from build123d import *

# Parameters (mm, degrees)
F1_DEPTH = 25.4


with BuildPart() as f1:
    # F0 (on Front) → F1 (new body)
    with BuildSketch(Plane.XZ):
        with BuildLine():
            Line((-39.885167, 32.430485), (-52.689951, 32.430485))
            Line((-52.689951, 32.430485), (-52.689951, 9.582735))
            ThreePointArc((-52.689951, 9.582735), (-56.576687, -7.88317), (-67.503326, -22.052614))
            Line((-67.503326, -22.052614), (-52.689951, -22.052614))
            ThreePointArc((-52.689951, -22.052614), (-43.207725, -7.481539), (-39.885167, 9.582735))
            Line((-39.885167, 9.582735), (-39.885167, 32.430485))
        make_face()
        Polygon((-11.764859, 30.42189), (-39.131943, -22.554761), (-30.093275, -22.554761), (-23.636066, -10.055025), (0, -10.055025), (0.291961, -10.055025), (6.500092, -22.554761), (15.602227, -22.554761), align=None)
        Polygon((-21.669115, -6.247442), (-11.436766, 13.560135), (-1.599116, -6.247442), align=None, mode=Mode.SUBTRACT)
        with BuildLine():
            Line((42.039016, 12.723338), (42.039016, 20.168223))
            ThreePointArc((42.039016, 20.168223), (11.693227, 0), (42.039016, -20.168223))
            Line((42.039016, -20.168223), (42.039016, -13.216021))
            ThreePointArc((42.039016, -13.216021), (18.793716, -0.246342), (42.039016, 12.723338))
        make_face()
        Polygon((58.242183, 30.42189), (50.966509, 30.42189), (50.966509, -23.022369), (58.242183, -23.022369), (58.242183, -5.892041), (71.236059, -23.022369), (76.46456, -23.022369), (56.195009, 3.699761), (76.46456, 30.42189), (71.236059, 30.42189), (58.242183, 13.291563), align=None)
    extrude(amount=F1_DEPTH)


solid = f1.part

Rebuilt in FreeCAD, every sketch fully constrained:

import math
import FreeCAD as App
import Part
import Sketcher
from FreeCAD import Vector


def add_polygon(sketch, points):
    """Adds a closed chain of lines whose ends are joined by coincident constraints."""
    first, n = sketch.GeometryCount, len(points)
    for a, b in zip(points, points[1:] + points[:1]):
        sketch.addGeometry(Part.LineSegment(App.Vector(*a, 0), App.Vector(*b, 0)), False)
    for i in range(n):
        sketch.addConstraint(Sketcher.Constraint("Coincident", first + i, 2, first + (i + 1) % n, 1))

doc = App.newDocument("Part")
params = doc.addObject("Spreadsheet::Sheet", "Params")
for row, (alias, value) in enumerate([
    ("pad1_length", "1 in"),
], start=1):
    params.set(f"A{row}", alias)
    params.set(f"B{row}", "=" + value)
    params.setAlias(f"B{row}", alias)

body = doc.addObject("PartDesign::Body", "Body")
body.AllowCompound = True

# Sketch on XZ plane
sketch1 = body.newObject("Sketcher::SketchObject", "Sketch")
sketch1.AttachmentSupport = (doc.getObject("XZ_Plane"), [""])
sketch1.MapMode = "FlatFace"
sketch1.addGeometry(Part.LineSegment(Vector(-39.885167, 32.430485, 0), Vector(-52.689951, 32.430485, 0)), False)  # 0
sketch1.addGeometry(Part.LineSegment(Vector(-52.689951, 32.430485, 0), Vector(-52.689951, 9.582735, 0)), False)  # 1
sketch1.addGeometry(Part.ArcOfCircle(Part.Circle(Vector(-93.87676, 9.582734, 0), Vector(0, 0, 1), 41.186809), math.radians(-50.183053), math.radians(0.000002)), False)  # 2
sketch1.addGeometry(Part.LineSegment(Vector(-67.503326, -22.052614, 0), Vector(-52.689951, -22.052614, 0)), False)  # 3
sketch1.addGeometry(Part.ArcOfCircle(Part.Circle(Vector(-85.366524, 9.582737, 0), Vector(0, 0, 1), 45.481357), math.radians(-44.072452), math.radians(-0.000002)), False)  # 4
sketch1.addGeometry(Part.LineSegment(Vector(-39.885167, 9.582735, 0), Vector(-39.885167, 32.430485, 0)), False)  # 5
add_polygon(sketch1, [(-11.764859, 30.42189), (-39.131943, -22.554761), (-30.093275, -22.554761), (-23.636066, -10.055025), (0.291961, -10.055025), (6.500092, -22.554761), (15.602227, -22.554761)])  # lines 6-12
add_polygon(sketch1, [(-1.599116, -6.247442), (-21.669115, -6.247442), (-11.436766, 13.560135)])  # lines 13-15
sketch1.addGeometry(Part.LineSegment(Vector(42.039016, 12.723338, 0), Vector(42.039016, 20.168223, 0)), False)  # 16
sketch1.addGeometry(Part.ArcOfCircle(Part.Circle(Vector(33.568159, 0, 0), Vector(0, 0, 1), 21.874932), math.radians(67.217103), math.radians(292.782897)), False)  # 17
sketch1.addGeometry(Part.LineSegment(Vector(42.039016, -20.168223, 0), Vector(42.039016, -13.216021, 0)), False)  # 18
sketch1.addGeometry(Part.ArcOfCircle(Part.Circle(Vector(34.034572, -0.246341, 0), Vector(0, 0, 1), 15.240856), math.radians(58.318531), math.radians(301.681469)), False)  # 19
add_polygon(sketch1, [(58.242183, 30.42189), (50.966509, 30.42189), (50.966509, -23.022369), (58.242183, -23.022369), (58.242183, -5.892041), (71.236059, -23.022369), (76.46456, -23.022369), (56.195009, 3.699761), (76.46456, 30.42189), (71.236059, 30.42189), (58.242183, 13.291563)])  # lines 20-30
sketch1.addConstraint([
    Sketcher.Constraint("Coincident", 0, 2, 1, 1),
    Sketcher.Constraint("Tangent", 1, 2, 2, 2),
    Sketcher.Constraint("Coincident", 2, 1, 3, 1),
    Sketcher.Constraint("Coincident", 3, 2, 4, 1),
    Sketcher.Constraint("Tangent", 4, 2, 5, 1),
    Sketcher.Constraint("Coincident", 5, 2, 0, 1),
    Sketcher.Constraint("Coincident", 16, 2, 17, 1),
    Sketcher.Constraint("Coincident", 17, 2, 18, 1),
    Sketcher.Constraint("Coincident", 18, 2, 19, 2),
    Sketcher.Constraint("Coincident", 19, 1, 16, 1),
    Sketcher.Constraint("Horizontal", 0),
    Sketcher.Constraint("Vertical", 1),
    Sketcher.Constraint("Horizontal", 3),
    Sketcher.Constraint("Vertical", 5),
    Sketcher.Constraint("Horizontal", 7),
    Sketcher.Constraint("Horizontal", 9),
    Sketcher.Constraint("Horizontal", 11),
    Sketcher.Constraint("Horizontal", 13),
    Sketcher.Constraint("Vertical", 16),
    Sketcher.Constraint("Vertical", 18),
    Sketcher.Constraint("Horizontal", 20),
    Sketcher.Constraint("Vertical", 21),
    Sketcher.Constraint("Horizontal", 22),
    Sketcher.Constraint("Vertical", 23),
    Sketcher.Constraint("Horizontal", 25),
    Sketcher.Constraint("Horizontal", 28),
    Sketcher.Constraint("Vertical", 30),
    Sketcher.Constraint("Symmetric", 16, 2, 17, 2, -1),
    Sketcher.Constraint("Parallel", 6, 8),
    Sketcher.Constraint("Parallel", 8, 14),
    Sketcher.Constraint("Parallel", 10, 15),
    Sketcher.Constraint("Parallel", 24, 26),
    Sketcher.Constraint("Parallel", 27, 29),
    Sketcher.Constraint("Horizontal", 4, 3, 1, 2),
    Sketcher.Constraint("Horizontal", 7, 2, 10, 2),
    Sketcher.Constraint("Horizontal", 12, 2, 20, 2),
    Sketcher.Constraint("Horizontal", 22, 2, 24, 2),
    Sketcher.Constraint("Horizontal", 20, 2, 27, 2),
    Sketcher.Constraint("Vertical", 1, 2, 3, 2),
    Sketcher.Constraint("Vertical", 25, 2, 27, 2),
    Sketcher.Constraint("Vertical", 24, 2, 28, 2),
    Sketcher.Constraint("Vertical", 23, 2, 29, 2),
    Sketcher.Constraint("Equal", 23, 30),
    Sketcher.Constraint("Equal", 6, 12),
    Sketcher.Constraint("Radius", 2, 41.186809),
    Sketcher.Constraint("Radius", 17, 21.874932),
    Sketcher.Constraint("DistanceX", 13, 2, 13, 1, 20.069999),
    Sketcher.Constraint("DistanceX", 25, 1, 25, 2, 5.228501),
    Sketcher.Constraint("Radius", 4, 45.481357),
    Sketcher.Constraint("Radius", 19, 15.240856),
    Sketcher.Constraint("DistanceX", 7, 1, 7, 2, 9.038668),
    Sketcher.Constraint("DistanceY", 1, 2, 1, 1, 22.84775),
    Sketcher.Constraint("DistanceY", 21, 2, 21, 1, 53.444259),
    Sketcher.Constraint("DistanceY", 23, 1, 23, 2, 17.130328),
    Sketcher.Constraint("DistanceY", 2, 1, 0, 2, 54.483099),
    Sketcher.Constraint("DistanceX", 4, 2, 8, 2, 16.249101),
    Sketcher.Constraint("DistanceX", 8, 2, 14, 2, 12.1993),
    Sketcher.Constraint("DistanceY", 4, 2, 14, 2, 3.9774),
    Sketcher.Constraint("Distance", 6, 59.62787),
    Sketcher.Constraint("Distance", 26, 33.53993),
    Sketcher.Constraint("DistanceX", 9, 1, 9, 2, 23.928027),
    Sketcher.Constraint("DistanceX", 11, 1, 11, 2, 9.102135),
    Sketcher.Constraint("DistanceX", 20, 2, 20, 1, 7.275674),
    Sketcher.Constraint("DistanceY", 16, 1, 16, 2, 7.444885),
    Sketcher.Constraint("DistanceY", 18, 1, 18, 2, 6.952202),
    Sketcher.Constraint("DistanceX", 2, 3, -1, 1, 93.87676),
    Sketcher.Constraint("DistanceX", -1, 1, 17, 3, 33.568159),
    Sketcher.Constraint("DistanceY", 6, 2, -1, 1, 22.554761),
    Sketcher.Constraint("DistanceX", 12, 2, -1, 1, 11.764859),
    Sketcher.Constraint("DistanceY", -1, 1, 12, 2, 30.42189),
    Sketcher.Constraint("DistanceY", 18, 2, -1, 1, 13.216021),
    Sketcher.Constraint("DistanceX", -1, 1, 20, 2, 50.966509),
    Sketcher.Constraint("DistanceY", 19, 3, 4, 3, 9.829078),
])
pad1 = body.newObject("PartDesign::Pad", "Pad")
pad1.Profile = sketch1
pad1.setExpression("Length", "Params.pad1_length")

doc.recompute()
